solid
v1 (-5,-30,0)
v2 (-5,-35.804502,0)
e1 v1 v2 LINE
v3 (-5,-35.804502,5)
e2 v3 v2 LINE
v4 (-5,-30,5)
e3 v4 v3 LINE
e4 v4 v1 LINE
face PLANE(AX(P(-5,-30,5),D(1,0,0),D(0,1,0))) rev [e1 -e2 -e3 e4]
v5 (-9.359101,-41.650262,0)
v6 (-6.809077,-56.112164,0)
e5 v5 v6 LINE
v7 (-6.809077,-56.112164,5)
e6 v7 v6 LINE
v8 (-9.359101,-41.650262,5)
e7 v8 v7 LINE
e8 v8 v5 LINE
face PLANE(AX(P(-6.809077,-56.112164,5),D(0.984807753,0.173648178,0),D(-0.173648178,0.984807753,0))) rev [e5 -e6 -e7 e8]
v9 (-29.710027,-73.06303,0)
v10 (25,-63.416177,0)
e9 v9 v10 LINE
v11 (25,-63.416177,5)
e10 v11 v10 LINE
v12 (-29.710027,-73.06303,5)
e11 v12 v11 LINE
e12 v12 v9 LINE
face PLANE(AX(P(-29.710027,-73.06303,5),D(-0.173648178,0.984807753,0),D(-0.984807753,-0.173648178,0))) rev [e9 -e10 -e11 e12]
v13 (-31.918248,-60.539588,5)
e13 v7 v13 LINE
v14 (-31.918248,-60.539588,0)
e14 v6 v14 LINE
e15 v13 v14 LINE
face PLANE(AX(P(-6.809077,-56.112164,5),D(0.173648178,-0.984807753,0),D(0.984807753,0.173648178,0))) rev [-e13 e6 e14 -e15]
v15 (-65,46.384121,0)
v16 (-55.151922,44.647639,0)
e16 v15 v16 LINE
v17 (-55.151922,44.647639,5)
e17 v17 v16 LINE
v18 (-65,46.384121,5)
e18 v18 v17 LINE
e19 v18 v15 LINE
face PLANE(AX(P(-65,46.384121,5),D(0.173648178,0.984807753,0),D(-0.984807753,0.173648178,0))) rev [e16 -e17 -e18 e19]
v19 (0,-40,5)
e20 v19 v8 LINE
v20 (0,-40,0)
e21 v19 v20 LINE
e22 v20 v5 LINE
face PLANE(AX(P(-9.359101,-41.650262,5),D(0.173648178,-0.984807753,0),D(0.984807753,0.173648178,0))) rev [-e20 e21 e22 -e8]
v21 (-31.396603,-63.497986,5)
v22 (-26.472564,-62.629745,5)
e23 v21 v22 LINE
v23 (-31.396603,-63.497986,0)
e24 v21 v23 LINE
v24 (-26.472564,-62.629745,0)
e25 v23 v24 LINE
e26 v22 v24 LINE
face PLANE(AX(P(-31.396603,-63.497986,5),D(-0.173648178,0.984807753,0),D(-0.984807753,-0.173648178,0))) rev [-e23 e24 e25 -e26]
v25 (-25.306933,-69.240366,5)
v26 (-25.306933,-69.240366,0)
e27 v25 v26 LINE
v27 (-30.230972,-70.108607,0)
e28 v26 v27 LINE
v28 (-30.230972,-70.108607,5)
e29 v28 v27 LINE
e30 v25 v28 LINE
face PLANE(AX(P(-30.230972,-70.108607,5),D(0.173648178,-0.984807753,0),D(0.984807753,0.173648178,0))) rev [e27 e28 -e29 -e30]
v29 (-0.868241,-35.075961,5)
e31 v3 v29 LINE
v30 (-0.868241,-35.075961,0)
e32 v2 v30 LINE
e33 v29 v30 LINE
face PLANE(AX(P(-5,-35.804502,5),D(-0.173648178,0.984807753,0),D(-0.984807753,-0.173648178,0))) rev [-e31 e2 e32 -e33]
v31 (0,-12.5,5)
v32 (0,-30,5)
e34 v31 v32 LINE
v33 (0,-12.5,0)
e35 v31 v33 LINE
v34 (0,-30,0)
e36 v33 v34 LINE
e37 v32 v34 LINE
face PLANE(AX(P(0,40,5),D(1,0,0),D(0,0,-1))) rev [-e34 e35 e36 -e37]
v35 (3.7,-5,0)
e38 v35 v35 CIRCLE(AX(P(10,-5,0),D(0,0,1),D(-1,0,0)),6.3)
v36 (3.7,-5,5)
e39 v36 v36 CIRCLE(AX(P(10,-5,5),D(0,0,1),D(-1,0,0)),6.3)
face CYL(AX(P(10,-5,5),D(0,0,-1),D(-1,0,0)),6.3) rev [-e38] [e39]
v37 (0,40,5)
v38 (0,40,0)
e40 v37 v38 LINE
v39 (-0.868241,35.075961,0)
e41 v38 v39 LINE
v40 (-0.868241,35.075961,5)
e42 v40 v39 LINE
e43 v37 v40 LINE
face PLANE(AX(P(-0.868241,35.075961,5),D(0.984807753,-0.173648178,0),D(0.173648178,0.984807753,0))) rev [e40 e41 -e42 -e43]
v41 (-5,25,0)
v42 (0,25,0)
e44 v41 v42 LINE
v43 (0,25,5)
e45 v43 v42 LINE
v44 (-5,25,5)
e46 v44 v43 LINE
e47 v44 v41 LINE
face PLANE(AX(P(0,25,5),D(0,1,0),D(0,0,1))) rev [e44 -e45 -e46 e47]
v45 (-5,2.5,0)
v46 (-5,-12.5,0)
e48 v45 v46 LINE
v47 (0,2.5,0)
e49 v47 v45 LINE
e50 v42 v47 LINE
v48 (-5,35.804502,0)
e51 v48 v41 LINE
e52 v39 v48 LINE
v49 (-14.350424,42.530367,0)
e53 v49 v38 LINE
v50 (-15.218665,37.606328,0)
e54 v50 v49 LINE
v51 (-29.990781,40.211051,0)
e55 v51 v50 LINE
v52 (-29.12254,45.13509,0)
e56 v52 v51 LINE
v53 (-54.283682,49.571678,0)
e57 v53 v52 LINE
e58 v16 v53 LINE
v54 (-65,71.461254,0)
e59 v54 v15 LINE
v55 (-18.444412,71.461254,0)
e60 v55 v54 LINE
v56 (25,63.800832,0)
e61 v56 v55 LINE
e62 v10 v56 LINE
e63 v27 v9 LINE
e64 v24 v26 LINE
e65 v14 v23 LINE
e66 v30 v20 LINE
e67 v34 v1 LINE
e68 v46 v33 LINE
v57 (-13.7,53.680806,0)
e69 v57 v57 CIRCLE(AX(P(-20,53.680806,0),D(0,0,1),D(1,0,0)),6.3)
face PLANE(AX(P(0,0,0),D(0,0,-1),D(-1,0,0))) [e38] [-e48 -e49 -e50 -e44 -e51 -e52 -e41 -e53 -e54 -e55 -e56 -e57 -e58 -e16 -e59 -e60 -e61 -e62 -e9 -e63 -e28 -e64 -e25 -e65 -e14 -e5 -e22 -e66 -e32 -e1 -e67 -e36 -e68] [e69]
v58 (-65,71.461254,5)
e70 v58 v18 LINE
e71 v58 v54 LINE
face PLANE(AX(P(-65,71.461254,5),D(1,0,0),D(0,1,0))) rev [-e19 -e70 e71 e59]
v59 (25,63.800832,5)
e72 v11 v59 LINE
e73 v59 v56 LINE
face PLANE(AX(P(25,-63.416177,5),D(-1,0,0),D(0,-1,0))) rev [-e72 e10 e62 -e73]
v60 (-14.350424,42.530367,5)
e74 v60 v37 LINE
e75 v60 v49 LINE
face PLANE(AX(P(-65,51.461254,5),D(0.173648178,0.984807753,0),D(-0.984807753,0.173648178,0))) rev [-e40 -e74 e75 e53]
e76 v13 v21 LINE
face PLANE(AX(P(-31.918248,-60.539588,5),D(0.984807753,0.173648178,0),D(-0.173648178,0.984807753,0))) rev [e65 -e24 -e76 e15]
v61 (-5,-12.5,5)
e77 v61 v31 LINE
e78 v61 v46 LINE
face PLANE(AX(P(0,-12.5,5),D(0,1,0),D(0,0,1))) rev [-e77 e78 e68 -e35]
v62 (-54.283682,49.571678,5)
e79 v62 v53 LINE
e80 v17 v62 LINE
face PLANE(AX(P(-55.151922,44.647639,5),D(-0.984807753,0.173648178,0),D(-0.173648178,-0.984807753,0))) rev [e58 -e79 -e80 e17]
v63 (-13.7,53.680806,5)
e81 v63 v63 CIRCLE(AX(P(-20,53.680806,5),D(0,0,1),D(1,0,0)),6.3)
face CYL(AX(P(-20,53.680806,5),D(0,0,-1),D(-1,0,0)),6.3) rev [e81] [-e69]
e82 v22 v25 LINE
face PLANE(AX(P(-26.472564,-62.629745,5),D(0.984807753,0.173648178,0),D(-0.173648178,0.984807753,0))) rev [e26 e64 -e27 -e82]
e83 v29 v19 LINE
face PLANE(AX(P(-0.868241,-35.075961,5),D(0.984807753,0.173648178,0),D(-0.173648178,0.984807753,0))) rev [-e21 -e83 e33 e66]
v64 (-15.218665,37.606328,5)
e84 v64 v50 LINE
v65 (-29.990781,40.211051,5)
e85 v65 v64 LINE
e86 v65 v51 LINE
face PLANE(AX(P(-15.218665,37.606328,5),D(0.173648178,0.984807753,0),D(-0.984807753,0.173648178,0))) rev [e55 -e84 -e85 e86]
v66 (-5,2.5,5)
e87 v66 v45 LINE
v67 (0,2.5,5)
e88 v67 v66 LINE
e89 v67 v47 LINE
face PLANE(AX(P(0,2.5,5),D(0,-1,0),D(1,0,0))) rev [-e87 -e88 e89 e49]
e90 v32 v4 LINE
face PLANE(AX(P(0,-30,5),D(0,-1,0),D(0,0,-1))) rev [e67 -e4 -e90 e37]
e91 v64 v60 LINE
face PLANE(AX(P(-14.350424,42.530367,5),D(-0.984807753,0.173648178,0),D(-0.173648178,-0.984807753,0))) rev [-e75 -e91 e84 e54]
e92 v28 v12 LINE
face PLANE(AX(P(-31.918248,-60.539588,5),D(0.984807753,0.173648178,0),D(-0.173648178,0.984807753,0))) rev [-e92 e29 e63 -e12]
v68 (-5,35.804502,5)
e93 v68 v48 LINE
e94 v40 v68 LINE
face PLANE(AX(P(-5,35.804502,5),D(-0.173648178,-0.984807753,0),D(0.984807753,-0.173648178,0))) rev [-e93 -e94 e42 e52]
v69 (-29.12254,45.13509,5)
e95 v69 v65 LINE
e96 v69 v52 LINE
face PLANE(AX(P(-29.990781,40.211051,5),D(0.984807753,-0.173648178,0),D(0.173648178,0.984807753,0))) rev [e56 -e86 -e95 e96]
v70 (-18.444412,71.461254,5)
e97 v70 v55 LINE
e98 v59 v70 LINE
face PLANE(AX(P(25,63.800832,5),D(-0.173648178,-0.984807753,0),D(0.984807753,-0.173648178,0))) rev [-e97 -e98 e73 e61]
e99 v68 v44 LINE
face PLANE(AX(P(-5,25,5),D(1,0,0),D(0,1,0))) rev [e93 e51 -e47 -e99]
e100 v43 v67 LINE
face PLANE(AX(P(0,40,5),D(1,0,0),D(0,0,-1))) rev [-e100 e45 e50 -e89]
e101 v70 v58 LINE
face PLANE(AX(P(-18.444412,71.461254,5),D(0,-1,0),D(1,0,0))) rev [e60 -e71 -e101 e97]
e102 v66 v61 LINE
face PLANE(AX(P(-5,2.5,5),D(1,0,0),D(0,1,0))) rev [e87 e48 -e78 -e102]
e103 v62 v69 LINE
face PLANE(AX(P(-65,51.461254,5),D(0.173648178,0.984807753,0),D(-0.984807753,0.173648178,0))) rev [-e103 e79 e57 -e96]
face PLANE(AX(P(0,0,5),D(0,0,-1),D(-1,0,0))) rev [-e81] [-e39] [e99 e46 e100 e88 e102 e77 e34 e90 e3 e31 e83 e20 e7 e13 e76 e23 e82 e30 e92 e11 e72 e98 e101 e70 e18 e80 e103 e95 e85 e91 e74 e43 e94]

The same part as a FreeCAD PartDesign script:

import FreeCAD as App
import Part
import Sketcher

V = App.Vector
Q = App.Units.Quantity


def add_polygon(sketch, points):
    """Adds a closed chain of lines whose ends are joined by coincident constraints."""
    first, n = sketch.GeometryCount, len(points)
    for a, b in zip(points, points[1:] + points[:1]):
        sketch.addGeometry(Part.LineSegment(App.Vector(*a, 0), App.Vector(*b, 0)), False)
    for i in range(n):
        sketch.addConstraint(Sketcher.Constraint("Coincident", first + i, 2, first + (i + 1) % n, 1))

doc = App.newDocument("Part")
params = doc.addObject("Spreadsheet::Sheet", "Params")
for row, (alias, value) in enumerate([
    ("sketch1_diameter", "12.6 mm"),
    ("sketch1_height", "80 mm"),
    ("sketch1_height2", "20 mm"),
    ("pad1_length", "5 mm"),
    ("sketch2_length", "5 mm"),
    ("pocket1_length", "5 mm"),
    ("sketch3_width", "5 mm"),
    ("sketch3_height", "10 mm"),
    ("sketch3_height2", "15 mm"),
    ("sketch3_length", "5 mm"),
    ("sketch3_length2", "15 mm"),
    ("pad2_length", "5 mm"),
], start=1):
    params.set(f"A{row}", alias)
    params.set(f"B{row}", "=" + value)
    params.setAlias(f"B{row}", alias)

body = doc.addObject("PartDesign::Body", "Body")

# Sketch on XY plane
sketch1 = doc.addObject("Sketcher::SketchObject", "Sketch")
body.addObject(sketch1)
sketch1.AttachmentSupport = (doc.XY_Plane, [""])
sketch1.MapMode = "FlatFace"
add_polygon(sketch1, [(-65, 51.461254), (0, 40), (0, -40), (-9.359101, -41.650262), (-6.809077, -56.112164), (-31.918248, -60.539588), (-29.710027, -73.06303), (25, -63.416177), (25, 63.800832), (-18.444412, 71.461254), (-65, 71.461254)])  # lines 0-10
sketch1.addGeometry(Part.Circle(V(10, -5, 0), V(0, 0, 1), 6.3), False)  # 11
sketch1.addGeometry(Part.Circle(V(-20, 53.680806, 0), V(0, 0, 1), 6.3), False)  # 12
sketch1.addConstraint([
    Sketcher.Constraint("Vertical", 1),
    Sketcher.Constraint("Vertical", 7),
    Sketcher.Constraint("Horizontal", 9),
    Sketcher.Constraint("Vertical", 10),
    Sketcher.Constraint("Equal", 11, 12),
    Sketcher.Constraint("Symmetric", 0, 2, 1, 2, -1, 1),
    Sketcher.Constraint("Perpendicular", 2, 3),
    Sketcher.Constraint("Perpendicular", 3, 4),
    Sketcher.Constraint("Perpendicular", 4, 5),
    Sketcher.Constraint("Perpendicular", 5, 6),
    Sketcher.Constraint("Parallel", 0, 8),
    Sketcher.Constraint("Diameter", 11, Q("12.6 mm")),
    Sketcher.Constraint("DistanceY", 1, 2, 1, 1, Q("80 mm")),
    Sketcher.Constraint("DistanceY", 10, 2, 10, 1, Q("20 mm")),
    Sketcher.Constraint("Angle", 0, Q("-10 deg")),
    Sketcher.Constraint("Angle", 2, Q("-170 deg")),
    Sketcher.Constraint("DistanceX", -1, 1, 11, 3, Q("10 mm")),
    Sketcher.Constraint("DistanceY", 11, 3, -1, 1, Q("5 mm")),
    Sketcher.Constraint("DistanceX", 12, 3, -1, 1, Q("20 mm")),
    Sketcher.Constraint("DistanceX", -1, 1, 6, 2, Q("25 mm")),
    Sketcher.Constraint("DistanceX", 9, 2, -1, 1, Q("65 mm")),
    Sketcher.Constraint("Distance", 3, Q("14.685 mm")),
    Sketcher.Constraint("DistanceY", 7, 1, 7, 2, Q("127.217008 mm")),
    Sketcher.Constraint("DistanceX", 2, 2, -1, 1, Q("9.359101 mm")),
    Sketcher.Constraint("Distance", 4, Q("25.49652 mm")),
    Sketcher.Constraint("DistanceX", 9, 2, 9, 1, Q("46.555588 mm")),
    Sketcher.Constraint("DistanceY", 3, 2, 12, 3, Q("109.79297 mm")),
])
sketch1.setExpression("Constraints[22]", "Params.sketch1_diameter")
sketch1.setExpression("Constraints[23]", "Params.sketch1_height")
sketch1.setExpression("Constraints[24]", "Params.sketch1_height2")
pad1 = doc.addObject("PartDesign::Pad", "Pad")
body.addObject(pad1)
pad1.Profile = sketch1
pad1.setExpression("Length", "Params.pad1_length")

# Sketch on XY plane
sketch2 = doc.addObject("Sketcher::SketchObject", "Sketch001")
body.addObject(sketch2)
sketch2.AttachmentSupport = (doc.XY_Plane, [""])
sketch2.MapMode = "FlatFace"
add_polygon(sketch2, [(-30.230972, -70.108607), (-31.396603, -63.497986), (-26.472564, -62.629745), (-25.306933, -69.240366)])  # lines 0-3
sketch2.addConstraint([
    Sketcher.Constraint("Perpendicular", 0, 1),
    Sketcher.Constraint("Perpendicular", 1, 2),
    Sketcher.Constraint("Perpendicular", 2, 3),
    Sketcher.Constraint("Angle", 0, Q("100 deg")),
    Sketcher.Constraint("Distance", 1, Q("5 mm")),
    Sketcher.Constraint("Distance", 0, Q("6.712601 mm")),
    Sketcher.Constraint("DistanceX", 3, 2, -1, 1, Q("30.230972 mm")),
    Sketcher.Constraint("DistanceY", 0, 2, -1, 1, Q("63.497986 mm")),
])
sketch2.setExpression("Constraints[8]", "Params.sketch2_length")
pocket1 = doc.addObject("PartDesign::Pocket", "Pocket")
body.addObject(pocket1)
pocket1.Profile = sketch2
pocket1.setExpression("Length", "Params.pocket1_length")
pocket1.Reversed = True

# Sketch on XY plane
sketch3 = doc.addObject("Sketcher::SketchObject", "Sketch002")
body.addObject(sketch3)
sketch3.AttachmentSupport = (doc.XY_Plane, [""])
sketch3.MapMode = "FlatFace"
add_polygon(sketch3, [(0, -40), (0, -30), (-5, -30), (-5, -35.804502), (-0.868241, -35.075961)])  # lines 0-4
add_polygon(sketch3, [(-5, 2.5), (-5, -12.5), (0, -12.5), (0, 2.5)])  # lines 5-8
add_polygon(sketch3, [(0, 40), (-0.868241, 35.075961), (-5, 35.804502), (-5, 25), (0, 25)])  # lines 9-13
add_polygon(sketch3, [(-14.350424, 42.530367), (-29.12254, 45.13509), (-29.990781, 40.211051), (-15.218665, 37.606328)])  # lines 14-17
add_polygon(sketch3, [(-65, 51.461254), (-65, 46.384121), (-55.151922, 44.647639), (-54.283682, 49.571678)])  # lines 18-21
sketch3.addConstraint([
    Sketcher.Constraint("Vertical", 0),
    Sketcher.Constraint("Horizontal", 1),
    Sketcher.Constraint("Vertical", 2),
    Sketcher.Constraint("Vertical", 5),
    Sketcher.Constraint("Horizontal", 6),
    Sketcher.Constraint("Vertical", 7),
    Sketcher.Constraint("Horizontal", 8),
    Sketcher.Constraint("Vertical", 11),
    Sketcher.Constraint("Horizontal", 12),
    Sketcher.Constraint("Vertical", 13),
    Sketcher.Constraint("Vertical", 18),
    Sketcher.Constraint("Symmetric", 4, 2, 13, 2, -1, 1),
    Sketcher.Constraint("Symmetric", 3, 2, 9, 2, -1),
    Sketcher.Constraint("Symmetric", 2, 2, 10, 2, -1),
    Sketcher.Constraint("PointOnObject", 0, 2, -2),
    Sketcher.Constraint("PointOnObject", 6, 2, -2),
    Sketcher.Constraint("Perpendicular", 3, 4),
    Sketcher.Constraint("Parallel", 10, 14),
    Sketcher.Constraint("Perpendicular", 14, 15),
    Sketcher.Constraint("Perpendicular", 15, 16),
    Sketcher.Constraint("Perpendicular", 16, 17),
    Sketcher.Constraint("Perpendicular", 17, 19),
    Sketcher.Constraint("Perpendicular", 19, 20),
    Sketcher.Constraint("Perpendicular", 20, 21),
    Sketcher.Constraint("Vertical", 2, 2, 5, 2),
    Sketcher.Constraint("Equal", 7, 13),
    Sketcher.Constraint("Equal", 9, 15),
    Sketcher.Constraint("Equal", 17, 20),
    Sketcher.Constraint("DistanceX", 1, 2, 1, 1, Q("5 mm")),
    Sketcher.Constraint("DistanceY", 0, 1, 0, 2, Q("10 mm")),
    Sketcher.Constraint("DistanceY", 5, 2, 5, 1, Q("15 mm")),
    Sketcher.Constraint("Angle", 3, Q("10 deg")),
    Sketcher.Constraint("Distance", 4, Q("5 mm")),
    Sketcher.Constraint("Distance", 14, Q("15 mm")),
    Sketcher.Constraint("Distance", 19, Q("10 mm")),
    Sketcher.Constraint("DistanceY", 0, 2, -1, 1, Q("30 mm")),
    Sketcher.Constraint("DistanceX", 18, 2, -1, 1, Q("65 mm")),
    Sketcher.Constraint("DistanceY", 5, 2, -1, 1, Q("12.5 mm")),
    Sketcher.Constraint("DistanceX", 14, 2, 9, 2, Q("28.254299 mm")),
    Sketcher.Constraint("DistanceY", -1, 1, 14, 2, Q("45.13509 mm")),
    Sketcher.Constraint("DistanceY", -1, 1, 18, 2, Q("46.384121 mm")),
])
sketch3.setExpression("Constraints[50]", "Params.sketch3_width")
sketch3.setExpression("Constraints[51]", "Params.sketch3_height")
sketch3.setExpression("Constraints[52]", "Params.sketch3_height2")
sketch3.setExpression("Constraints[54]", "Params.sketch3_length")
sketch3.setExpression("Constraints[55]", "Params.sketch3_length2")
pad2 = doc.addObject("PartDesign::Pad", "Pad001")
body.addObject(pad2)
pad2.Profile = sketch3
pad2.setExpression("Length", "Params.pad2_length")

doc.recompute()
